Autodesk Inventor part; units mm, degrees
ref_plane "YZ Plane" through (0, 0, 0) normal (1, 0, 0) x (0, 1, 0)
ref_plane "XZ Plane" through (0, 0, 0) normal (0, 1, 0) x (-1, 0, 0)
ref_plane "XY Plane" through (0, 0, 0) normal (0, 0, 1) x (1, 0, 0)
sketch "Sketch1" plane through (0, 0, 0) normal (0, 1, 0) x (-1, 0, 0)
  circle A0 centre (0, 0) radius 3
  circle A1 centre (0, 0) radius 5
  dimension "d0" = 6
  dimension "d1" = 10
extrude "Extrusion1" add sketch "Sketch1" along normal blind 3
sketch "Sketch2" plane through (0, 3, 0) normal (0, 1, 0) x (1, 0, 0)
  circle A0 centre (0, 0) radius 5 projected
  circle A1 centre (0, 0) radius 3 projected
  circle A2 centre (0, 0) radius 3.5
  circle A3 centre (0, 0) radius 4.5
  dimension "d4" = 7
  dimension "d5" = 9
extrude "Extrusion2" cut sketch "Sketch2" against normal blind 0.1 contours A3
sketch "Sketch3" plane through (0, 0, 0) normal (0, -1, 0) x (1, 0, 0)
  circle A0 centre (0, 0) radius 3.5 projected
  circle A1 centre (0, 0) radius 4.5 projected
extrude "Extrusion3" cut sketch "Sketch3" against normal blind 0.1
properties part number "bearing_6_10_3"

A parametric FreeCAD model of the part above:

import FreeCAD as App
import Part
import Sketcher

V = App.Vector

doc = App.newDocument("Part")
params = doc.addObject("Spreadsheet::Sheet", "Params")
for row, (alias, value) in enumerate([
    ("sketch1_diameter", "10 mm"),
    ("sketch1_diameter2", "6 mm"),
    ("pad1_length", "3 mm"),
    ("sketch2_diameter", "9 mm"),
    ("sketch2_diameter2", "7 mm"),
    ("pocket1_length", "0.1 mm"),
    ("sketch3_diameter", "9 mm"),
    ("sketch3_diameter2", "7 mm"),
    ("pocket2_length", "0.1 mm"),
], start=1):
    params.set(f"A{row}", alias)
    params.set(f"B{row}", "=" + value)
    params.setAlias(f"B{row}", alias)

body = doc.addObject("PartDesign::Body", "Body")

# Sketch on XZ plane
sketch1 = doc.addObject("Sketcher::SketchObject", "Sketch")
body.addObject(sketch1)
sketch1.AttachmentSupport = (doc.XZ_Plane, [""])
sketch1.MapMode = "FlatFace"
sketch1.addGeometry([
    Part.Circle(V(0, 0, 0), V(0, 0, 1), 5),
    Part.Circle(V(0, 0, 0), V(0, 0, 1), 3),
], False)
sketch1.addConstraint([
    Sketcher.Constraint("Coincident", 0, 3, -1, 1),
    Sketcher.Constraint("Coincident", 1, 3, -1, 1),
    Sketcher.Constraint("Diameter", 0, 10.0),
    Sketcher.Constraint("Diameter", 1, 6.0),
])
sketch1.setExpression("Constraints[2]", "Params.sketch1_diameter")
sketch1.setExpression("Constraints[3]", "Params.sketch1_diameter2")
pad1 = doc.addObject("PartDesign::Pad", "Pad")
body.addObject(pad1)
pad1.Profile = sketch1
pad1.setExpression("Length", "Params.pad1_length")
pad1.Reversed = True

# Sketch on XZ plane
sketch2 = doc.addObject("Sketcher::SketchObject", "Sketch001")
body.addObject(sketch2)
sketch2.AttachmentSupport = (doc.XZ_Plane, [""])
sketch2.MapMode = "FlatFace"
sketch2.AttachmentOffset = App.Placement(V(0, 0, -3), App.Rotation())
sketch2.addGeometry([
    Part.Circle(V(0, 0, 0), V(0, 0, 1), 4.5),
    Part.Circle(V(0, 0, 0), V(0, 0, 1), 3.5),
], False)
sketch2.addConstraint([
    Sketcher.Constraint("Coincident", 0, 3, -1, 1),
    Sketcher.Constraint("Coincident", 1, 3, -1, 1),
    Sketcher.Constraint("Diameter", 0, 9.0),
    Sketcher.Constraint("Diameter", 1, 7.0),
])
sketch2.setExpression("Constraints[2]", "Params.sketch2_diameter")
sketch2.setExpression("Constraints[3]", "Params.sketch2_diameter2")
pocket1 = doc.addObject("PartDesign::Pocket", "Pocket")
body.addObject(pocket1)
pocket1.Profile = sketch2
pocket1.setExpression("Length", "Params.pocket1_length")
pocket1.Reversed = True

# Sketch on XZ plane
sketch3 = doc.addObject("Sketcher::SketchObject", "Sketch002")
body.addObject(sketch3)
sketch3.AttachmentSupport = (doc.XZ_Plane, [""])
sketch3.MapMode = "FlatFace"
sketch3.addGeometry([
    Part.Circle(V(0, 0, 0), V(0, 0, 1), 4.5),
    Part.Circle(V(0, 0, 0), V(0, 0, 1), 3.5),
], False)
sketch3.addConstraint([
    Sketcher.Constraint("Coincident", 0, 3, -1, 1),
    Sketcher.Constraint("Coincident", 1, 3, -1, 1),
    Sketcher.Constraint("Diameter", 0, 9.0),
    Sketcher.Constraint("Diameter", 1, 7.0),
])
sketch3.setExpression("Constraints[2]", "Params.sketch3_diameter")
sketch3.setExpression("Constraints[3]", "Params.sketch3_diameter2")
pocket2 = doc.addObject("PartDesign::Pocket", "Pocket001")
body.addObject(pocket2)
pocket2.Profile = sketch3
pocket2.setExpression("Length", "Params.pocket2_length")

doc.recompute()
